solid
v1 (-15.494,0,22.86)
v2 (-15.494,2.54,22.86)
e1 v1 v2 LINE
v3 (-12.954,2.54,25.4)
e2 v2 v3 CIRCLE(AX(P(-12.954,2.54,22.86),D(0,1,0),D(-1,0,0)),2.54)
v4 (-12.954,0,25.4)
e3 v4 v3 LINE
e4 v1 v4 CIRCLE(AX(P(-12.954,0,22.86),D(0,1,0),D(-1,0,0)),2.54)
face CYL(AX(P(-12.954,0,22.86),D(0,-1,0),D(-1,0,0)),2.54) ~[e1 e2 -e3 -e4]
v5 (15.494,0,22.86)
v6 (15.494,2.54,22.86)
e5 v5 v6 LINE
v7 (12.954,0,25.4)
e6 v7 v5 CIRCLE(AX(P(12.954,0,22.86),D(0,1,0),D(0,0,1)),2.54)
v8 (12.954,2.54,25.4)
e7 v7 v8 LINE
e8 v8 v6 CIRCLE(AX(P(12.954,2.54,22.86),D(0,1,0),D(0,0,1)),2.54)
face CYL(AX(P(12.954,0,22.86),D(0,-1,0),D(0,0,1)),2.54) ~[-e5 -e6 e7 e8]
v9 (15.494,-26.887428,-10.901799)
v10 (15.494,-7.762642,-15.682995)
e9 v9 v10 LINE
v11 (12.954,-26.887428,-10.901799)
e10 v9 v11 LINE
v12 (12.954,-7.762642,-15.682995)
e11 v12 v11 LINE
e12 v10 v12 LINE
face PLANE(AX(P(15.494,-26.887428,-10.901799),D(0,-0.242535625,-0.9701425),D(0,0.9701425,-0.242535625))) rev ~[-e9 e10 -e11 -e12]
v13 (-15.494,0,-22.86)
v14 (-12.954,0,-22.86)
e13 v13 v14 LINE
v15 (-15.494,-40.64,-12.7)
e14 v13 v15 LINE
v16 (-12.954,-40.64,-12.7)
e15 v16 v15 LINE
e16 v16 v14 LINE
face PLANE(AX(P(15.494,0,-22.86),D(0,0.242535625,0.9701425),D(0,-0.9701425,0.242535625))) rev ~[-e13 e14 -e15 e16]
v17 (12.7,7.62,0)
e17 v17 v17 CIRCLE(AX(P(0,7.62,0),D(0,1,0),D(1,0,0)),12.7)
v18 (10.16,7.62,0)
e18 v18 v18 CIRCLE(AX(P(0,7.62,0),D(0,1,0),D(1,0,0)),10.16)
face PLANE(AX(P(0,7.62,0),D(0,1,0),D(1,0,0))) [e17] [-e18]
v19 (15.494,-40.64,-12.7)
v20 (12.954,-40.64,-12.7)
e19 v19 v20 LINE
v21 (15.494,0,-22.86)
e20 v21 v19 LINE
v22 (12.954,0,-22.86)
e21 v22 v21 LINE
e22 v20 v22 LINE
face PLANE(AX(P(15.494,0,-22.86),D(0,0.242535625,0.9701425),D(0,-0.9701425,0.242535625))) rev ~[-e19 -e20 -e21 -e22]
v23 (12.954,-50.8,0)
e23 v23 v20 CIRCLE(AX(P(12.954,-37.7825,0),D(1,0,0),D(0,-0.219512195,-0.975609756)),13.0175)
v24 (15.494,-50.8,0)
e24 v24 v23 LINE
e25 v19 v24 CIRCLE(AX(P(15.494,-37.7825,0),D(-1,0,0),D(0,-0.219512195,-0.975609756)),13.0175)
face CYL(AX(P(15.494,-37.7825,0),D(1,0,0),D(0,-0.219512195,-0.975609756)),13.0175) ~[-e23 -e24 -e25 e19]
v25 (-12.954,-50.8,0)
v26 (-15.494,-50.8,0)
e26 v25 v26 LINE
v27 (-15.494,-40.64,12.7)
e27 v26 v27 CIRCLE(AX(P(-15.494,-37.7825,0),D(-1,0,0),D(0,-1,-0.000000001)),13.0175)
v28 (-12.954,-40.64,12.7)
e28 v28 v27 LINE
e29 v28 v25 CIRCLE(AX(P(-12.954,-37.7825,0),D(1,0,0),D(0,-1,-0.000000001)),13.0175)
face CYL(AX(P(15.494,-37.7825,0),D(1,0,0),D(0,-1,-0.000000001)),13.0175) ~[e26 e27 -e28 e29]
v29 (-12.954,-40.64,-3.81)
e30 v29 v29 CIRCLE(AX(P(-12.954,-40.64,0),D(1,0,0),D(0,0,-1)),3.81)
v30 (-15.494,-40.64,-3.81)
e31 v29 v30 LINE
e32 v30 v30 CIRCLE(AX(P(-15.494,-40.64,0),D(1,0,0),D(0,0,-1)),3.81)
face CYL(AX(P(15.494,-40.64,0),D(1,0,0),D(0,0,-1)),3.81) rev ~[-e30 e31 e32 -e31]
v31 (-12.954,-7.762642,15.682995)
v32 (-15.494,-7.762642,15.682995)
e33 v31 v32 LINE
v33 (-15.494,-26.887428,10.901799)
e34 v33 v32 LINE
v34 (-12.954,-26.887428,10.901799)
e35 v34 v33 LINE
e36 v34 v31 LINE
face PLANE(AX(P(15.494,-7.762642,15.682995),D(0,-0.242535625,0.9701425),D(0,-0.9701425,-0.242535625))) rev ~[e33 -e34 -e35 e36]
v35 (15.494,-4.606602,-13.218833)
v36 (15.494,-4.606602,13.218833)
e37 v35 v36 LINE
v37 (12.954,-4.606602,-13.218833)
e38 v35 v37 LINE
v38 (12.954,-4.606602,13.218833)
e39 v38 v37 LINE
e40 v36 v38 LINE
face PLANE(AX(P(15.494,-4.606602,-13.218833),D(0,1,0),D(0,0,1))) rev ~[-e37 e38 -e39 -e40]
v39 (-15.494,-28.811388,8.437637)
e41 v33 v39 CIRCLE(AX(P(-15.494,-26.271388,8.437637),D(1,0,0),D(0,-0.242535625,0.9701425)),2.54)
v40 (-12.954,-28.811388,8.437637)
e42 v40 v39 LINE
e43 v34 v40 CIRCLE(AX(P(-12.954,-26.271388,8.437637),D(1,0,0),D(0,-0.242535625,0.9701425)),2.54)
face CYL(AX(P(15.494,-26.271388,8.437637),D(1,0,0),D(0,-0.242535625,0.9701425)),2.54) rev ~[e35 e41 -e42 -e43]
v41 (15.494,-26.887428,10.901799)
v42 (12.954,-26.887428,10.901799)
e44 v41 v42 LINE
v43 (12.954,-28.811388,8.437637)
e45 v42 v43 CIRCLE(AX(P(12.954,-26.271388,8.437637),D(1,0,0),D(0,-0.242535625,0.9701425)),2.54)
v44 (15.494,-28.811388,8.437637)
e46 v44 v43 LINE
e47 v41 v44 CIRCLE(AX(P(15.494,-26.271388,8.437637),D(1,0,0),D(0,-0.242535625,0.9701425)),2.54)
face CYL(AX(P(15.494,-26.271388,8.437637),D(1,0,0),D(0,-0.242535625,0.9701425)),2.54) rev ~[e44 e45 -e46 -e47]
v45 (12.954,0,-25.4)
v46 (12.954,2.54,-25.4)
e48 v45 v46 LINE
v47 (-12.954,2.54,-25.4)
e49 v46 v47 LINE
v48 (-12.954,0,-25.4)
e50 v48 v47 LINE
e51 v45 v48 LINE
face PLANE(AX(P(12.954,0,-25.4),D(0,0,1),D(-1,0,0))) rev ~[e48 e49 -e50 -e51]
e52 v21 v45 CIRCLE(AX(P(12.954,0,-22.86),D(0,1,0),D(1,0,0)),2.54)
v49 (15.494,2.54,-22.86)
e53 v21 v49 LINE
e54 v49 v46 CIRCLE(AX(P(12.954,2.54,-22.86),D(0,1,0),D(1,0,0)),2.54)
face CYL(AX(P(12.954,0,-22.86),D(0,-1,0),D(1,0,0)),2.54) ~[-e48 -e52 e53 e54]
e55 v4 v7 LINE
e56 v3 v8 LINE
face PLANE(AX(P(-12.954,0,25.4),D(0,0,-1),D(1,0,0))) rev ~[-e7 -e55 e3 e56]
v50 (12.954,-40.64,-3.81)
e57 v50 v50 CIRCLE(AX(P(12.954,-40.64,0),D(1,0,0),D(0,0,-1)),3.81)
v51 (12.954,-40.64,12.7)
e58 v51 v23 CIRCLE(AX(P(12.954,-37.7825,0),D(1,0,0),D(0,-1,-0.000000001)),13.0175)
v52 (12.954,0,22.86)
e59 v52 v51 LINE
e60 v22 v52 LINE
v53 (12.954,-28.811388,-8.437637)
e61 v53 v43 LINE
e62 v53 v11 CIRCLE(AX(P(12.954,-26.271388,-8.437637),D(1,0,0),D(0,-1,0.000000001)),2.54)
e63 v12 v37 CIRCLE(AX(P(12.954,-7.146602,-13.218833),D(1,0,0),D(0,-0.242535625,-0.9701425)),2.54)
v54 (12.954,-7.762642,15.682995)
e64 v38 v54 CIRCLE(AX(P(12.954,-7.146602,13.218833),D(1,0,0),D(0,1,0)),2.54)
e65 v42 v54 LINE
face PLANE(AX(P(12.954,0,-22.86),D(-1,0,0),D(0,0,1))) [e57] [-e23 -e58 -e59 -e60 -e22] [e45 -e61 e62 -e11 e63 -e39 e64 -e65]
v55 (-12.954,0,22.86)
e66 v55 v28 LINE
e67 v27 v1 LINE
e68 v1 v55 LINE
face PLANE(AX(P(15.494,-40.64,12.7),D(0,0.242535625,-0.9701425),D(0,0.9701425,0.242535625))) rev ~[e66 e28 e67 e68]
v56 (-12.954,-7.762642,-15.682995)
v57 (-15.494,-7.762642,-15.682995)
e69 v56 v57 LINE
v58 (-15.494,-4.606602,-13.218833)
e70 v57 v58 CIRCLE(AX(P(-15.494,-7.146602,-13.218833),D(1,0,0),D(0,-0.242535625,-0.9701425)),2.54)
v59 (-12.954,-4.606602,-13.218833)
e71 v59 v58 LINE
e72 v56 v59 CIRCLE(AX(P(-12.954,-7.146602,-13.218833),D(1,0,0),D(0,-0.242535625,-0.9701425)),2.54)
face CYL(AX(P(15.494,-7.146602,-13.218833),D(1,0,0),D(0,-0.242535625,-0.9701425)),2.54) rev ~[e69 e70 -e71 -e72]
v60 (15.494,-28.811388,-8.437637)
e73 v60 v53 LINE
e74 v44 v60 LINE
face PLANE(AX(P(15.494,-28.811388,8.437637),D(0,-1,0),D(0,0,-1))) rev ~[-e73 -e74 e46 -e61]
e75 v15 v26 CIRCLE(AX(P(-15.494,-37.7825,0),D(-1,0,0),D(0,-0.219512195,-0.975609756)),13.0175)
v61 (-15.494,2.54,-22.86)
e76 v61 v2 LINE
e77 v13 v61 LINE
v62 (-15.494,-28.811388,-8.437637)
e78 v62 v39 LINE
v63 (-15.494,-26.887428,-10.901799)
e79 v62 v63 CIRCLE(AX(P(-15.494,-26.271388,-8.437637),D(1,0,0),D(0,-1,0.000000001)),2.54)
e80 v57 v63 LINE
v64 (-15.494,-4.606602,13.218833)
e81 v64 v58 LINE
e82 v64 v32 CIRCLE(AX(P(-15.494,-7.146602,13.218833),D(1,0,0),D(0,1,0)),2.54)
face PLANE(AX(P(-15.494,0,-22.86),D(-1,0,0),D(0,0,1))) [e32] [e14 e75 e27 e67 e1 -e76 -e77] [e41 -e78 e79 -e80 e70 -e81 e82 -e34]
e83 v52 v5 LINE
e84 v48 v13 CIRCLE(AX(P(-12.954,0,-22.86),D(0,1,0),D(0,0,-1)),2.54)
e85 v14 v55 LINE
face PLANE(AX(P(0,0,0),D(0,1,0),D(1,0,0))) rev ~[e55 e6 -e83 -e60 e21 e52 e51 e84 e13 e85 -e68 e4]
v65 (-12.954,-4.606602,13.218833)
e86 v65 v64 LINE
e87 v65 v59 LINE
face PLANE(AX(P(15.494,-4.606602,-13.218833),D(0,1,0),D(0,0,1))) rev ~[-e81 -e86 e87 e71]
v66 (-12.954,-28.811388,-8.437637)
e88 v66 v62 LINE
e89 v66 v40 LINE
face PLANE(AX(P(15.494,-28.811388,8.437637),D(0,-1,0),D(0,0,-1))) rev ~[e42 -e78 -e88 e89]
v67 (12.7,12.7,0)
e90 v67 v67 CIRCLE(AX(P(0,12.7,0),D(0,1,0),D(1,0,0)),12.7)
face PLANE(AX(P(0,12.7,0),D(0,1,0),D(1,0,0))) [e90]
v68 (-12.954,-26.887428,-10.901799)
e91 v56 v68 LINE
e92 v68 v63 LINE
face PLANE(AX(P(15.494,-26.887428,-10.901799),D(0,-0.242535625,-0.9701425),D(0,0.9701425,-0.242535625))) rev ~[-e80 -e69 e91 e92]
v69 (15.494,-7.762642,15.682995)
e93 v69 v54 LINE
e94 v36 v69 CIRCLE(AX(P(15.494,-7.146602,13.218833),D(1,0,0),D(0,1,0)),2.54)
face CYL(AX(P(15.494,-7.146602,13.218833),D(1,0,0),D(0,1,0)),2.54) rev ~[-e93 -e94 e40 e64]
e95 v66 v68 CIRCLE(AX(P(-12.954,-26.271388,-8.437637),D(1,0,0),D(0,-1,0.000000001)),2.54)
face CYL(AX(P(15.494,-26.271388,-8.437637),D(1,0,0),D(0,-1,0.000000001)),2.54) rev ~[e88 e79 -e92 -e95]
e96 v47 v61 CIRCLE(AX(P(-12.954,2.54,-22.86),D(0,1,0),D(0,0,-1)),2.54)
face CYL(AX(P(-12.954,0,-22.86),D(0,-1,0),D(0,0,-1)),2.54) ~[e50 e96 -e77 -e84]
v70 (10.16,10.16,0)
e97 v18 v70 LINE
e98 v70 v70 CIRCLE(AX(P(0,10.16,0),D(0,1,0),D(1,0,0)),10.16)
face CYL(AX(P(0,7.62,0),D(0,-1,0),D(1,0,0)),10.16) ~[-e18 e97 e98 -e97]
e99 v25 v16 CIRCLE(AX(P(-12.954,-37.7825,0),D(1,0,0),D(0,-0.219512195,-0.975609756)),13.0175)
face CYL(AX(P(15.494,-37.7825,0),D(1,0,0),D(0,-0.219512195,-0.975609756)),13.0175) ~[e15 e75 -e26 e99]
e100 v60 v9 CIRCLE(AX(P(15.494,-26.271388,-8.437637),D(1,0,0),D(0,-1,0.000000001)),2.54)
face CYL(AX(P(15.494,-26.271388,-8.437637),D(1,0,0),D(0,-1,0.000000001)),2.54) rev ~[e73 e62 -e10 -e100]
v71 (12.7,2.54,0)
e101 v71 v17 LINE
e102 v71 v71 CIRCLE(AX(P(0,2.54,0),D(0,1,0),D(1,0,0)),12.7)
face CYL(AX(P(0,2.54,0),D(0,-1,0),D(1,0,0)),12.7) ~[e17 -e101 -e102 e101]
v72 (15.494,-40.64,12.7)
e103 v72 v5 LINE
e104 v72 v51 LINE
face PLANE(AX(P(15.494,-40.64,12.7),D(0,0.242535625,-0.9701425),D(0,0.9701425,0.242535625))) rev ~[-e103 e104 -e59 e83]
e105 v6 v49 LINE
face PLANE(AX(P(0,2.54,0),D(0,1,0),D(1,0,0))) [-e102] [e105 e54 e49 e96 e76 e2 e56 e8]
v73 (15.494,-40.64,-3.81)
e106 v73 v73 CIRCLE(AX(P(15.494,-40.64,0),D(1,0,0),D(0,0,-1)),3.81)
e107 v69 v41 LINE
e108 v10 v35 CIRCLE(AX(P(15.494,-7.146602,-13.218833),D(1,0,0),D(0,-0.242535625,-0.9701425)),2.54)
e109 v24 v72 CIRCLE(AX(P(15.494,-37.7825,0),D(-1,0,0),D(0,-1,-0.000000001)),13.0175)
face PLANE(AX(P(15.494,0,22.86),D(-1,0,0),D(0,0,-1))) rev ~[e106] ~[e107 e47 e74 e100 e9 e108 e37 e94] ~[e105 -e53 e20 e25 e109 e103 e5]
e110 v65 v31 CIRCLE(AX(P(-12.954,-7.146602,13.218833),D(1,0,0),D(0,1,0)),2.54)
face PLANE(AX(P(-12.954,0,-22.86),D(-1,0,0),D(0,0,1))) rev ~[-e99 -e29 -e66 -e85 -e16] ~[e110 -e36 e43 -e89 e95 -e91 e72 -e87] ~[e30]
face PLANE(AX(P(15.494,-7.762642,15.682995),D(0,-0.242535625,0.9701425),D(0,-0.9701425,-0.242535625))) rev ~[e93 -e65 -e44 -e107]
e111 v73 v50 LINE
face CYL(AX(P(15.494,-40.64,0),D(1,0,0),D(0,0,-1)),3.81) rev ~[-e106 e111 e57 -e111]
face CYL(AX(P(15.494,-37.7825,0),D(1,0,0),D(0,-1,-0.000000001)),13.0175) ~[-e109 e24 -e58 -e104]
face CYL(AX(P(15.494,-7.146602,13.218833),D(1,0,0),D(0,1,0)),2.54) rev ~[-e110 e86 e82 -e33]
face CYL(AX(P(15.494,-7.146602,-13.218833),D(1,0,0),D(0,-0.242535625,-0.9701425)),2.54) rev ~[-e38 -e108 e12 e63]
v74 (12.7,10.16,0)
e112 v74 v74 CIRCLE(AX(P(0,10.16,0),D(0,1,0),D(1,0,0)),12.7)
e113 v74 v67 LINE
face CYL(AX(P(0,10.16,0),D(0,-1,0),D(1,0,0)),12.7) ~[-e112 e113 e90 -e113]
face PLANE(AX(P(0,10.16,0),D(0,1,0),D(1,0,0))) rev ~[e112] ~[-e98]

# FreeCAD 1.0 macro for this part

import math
import FreeCAD as App
import Part
import Sketcher
from FreeCAD import Vector
Q = App.Units.Quantity

doc = App.newDocument("Part")
body = doc.addObject("PartDesign::Body", "Body")

# Sketch on XZ plane
sketch1 = doc.addObject("Sketcher::SketchObject", "Sketch")
body.addObject(sketch1)
sketch1.AttachmentSupport = (doc.XZ_Plane, [""])
sketch1.MapMode = "FlatFace"
sketch1.addGeometry([
    Part.LineSegment(Vector(-13, 25.4, 0), Vector(13, 25.4, 0)),  # 0
    Part.ArcOfCircle(Part.Circle(Vector(13, 22.9, 0), Vector(0, 0, 1), 2.5), math.radians(0), math.radians(90)),  # 1
    Part.LineSegment(Vector(15.5, 22.9, 0), Vector(15.5, -22.9, 0)),  # 2
    Part.ArcOfCircle(Part.Circle(Vector(13, -22.9, 0), Vector(0, 0, 1), 2.5), math.radians(-90), math.radians(0)),  # 3
    Part.LineSegment(Vector(13, -25.4, 0), Vector(-13, -25.4, 0)),  # 4
    Part.ArcOfCircle(Part.Circle(Vector(-13, -22.9, 0), Vector(0, 0, 1), 2.5), math.radians(-180), math.radians(-90)),  # 5
    Part.LineSegment(Vector(-15.5, -22.9, 0), Vector(-15.5, 22.9, 0)),  # 6
    Part.ArcOfCircle(Part.Circle(Vector(-13, 22.9, 0), Vector(0, 0, 1), 2.5), math.radians(90), math.radians(180)),  # 7
], False)
sketch1.addConstraint([
    Sketcher.Constraint("Tangent", 0, 2, 1, 2),
    Sketcher.Constraint("Tangent", 1, 1, 2, 1),
    Sketcher.Constraint("Tangent", 2, 2, 3, 2),
    Sketcher.Constraint("Tangent", 3, 1, 4, 1),
    Sketcher.Constraint("Tangent", 4, 2, 5, 2),
    Sketcher.Constraint("Tangent", 5, 1, 6, 1),
    Sketcher.Constraint("Tangent", 6, 2, 7, 2),
    Sketcher.Constraint("Tangent", 7, 1, 0, 1),
    Sketcher.Constraint("Horizontal", 0),
    Sketcher.Constraint("Vertical", 2),
    Sketcher.Constraint("Horizontal", 4),
    Sketcher.Constraint("Vertical", 6),
    Sketcher.Constraint("Equal", 1, 3),
    Sketcher.Constraint("Equal", 3, 5),
    Sketcher.Constraint("Equal", 5, 7),
    Sketcher.Constraint("Symmetric", 1, 3, 5, 3, -1, 1),
    Sketcher.Constraint("Radius", 1, Q("0.1 in")),
    Sketcher.Constraint("DistanceY", 2, 2, 2, 1, Q("1.8 in")),
    Sketcher.Constraint("DistanceX", 0, 1, 0, 2, Q("1.02 in")),
])
pad1 = doc.addObject("PartDesign::Pad", "Pad")
body.addObject(pad1)
pad1.Profile = sketch1
pad1.Length = Q("0.1 in")
pad1.Reversed = True

# Sketch on XZ plane
sketch2 = doc.addObject("Sketcher::SketchObject", "Sketch001")
body.addObject(sketch2)
sketch2.AttachmentSupport = (doc.XZ_Plane, [""])
sketch2.MapMode = "FlatFace"
sketch2.AttachmentOffset = App.Placement(Vector(0, 0, -0.1 * 25.4), App.Rotation())
sketch2.addGeometry(Part.Circle(Vector(0, 0, 0), Vector(0, 0, 1), 13), False)
sketch2.addConstraint([
    Sketcher.Constraint("Coincident", 0, 3, -1, 1),
    Sketcher.Constraint("Diameter", 0, Q("1 in")),
])
pad2 = doc.addObject("PartDesign::Pad", "Pad001")
body.addObject(pad2)
pad2.Profile = sketch2
pad2.Length = Q("0.2 in")
pad2.Reversed = True

# Sketch on XZ plane
sketch3 = doc.addObject("Sketcher::SketchObject", "Sketch002")
body.addObject(sketch3)
sketch3.AttachmentSupport = (doc.XZ_Plane, [""])
sketch3.MapMode = "FlatFace"
sketch3.AttachmentOffset = App.Placement(Vector(0, 0, -0.3 * 25.4), App.Rotation())
sketch3.addGeometry(Part.Circle(Vector(0, 0, 0), Vector(0, 0, 1), 10), False)
sketch3.addConstraint([
    Sketcher.Constraint("Coincident", 0, 3, -1, 1),
    Sketcher.Constraint("Diameter", 0, Q("0.8 in")),
])
pad3 = doc.addObject("PartDesign::Pad", "Pad002")
body.addObject(pad3)
pad3.Profile = sketch3
pad3.Length = Q("0.1 in")
pad3.Reversed = True

# Sketch on XZ plane
sketch4 = doc.addObject("Sketcher::SketchObject", "Sketch003")
body.addObject(sketch4)
sketch4.AttachmentSupport = (doc.XZ_Plane, [""])
sketch4.MapMode = "FlatFace"
sketch4.AttachmentOffset = App.Placement(Vector(0, 0, -0.4 * 25.4), App.Rotation())
sketch4.addGeometry(Part.Circle(Vector(0, 0, 0), Vector(0, 0, 1), 13), False)
sketch4.addConstraint([
    Sketcher.Constraint("Coincident", 0, 3, -1, 1),
    Sketcher.Constraint("Diameter", 0, Q("1 in")),
])
pad4 = doc.addObject("PartDesign::Pad", "Pad003")
body.addObject(pad4)
pad4.Profile = sketch4
pad4.Length = Q("0.1 in")
pad4.Reversed = True

# Sketch on XZ plane
sketch5 = doc.addObject("Sketcher::SketchObject", "Sketch004")
body.addObject(sketch5)
sketch5.AttachmentSupport = (doc.XZ_Plane, [""])
sketch5.MapMode = "FlatFace"
sketch5.addGeometry([
    Part.LineSegment(Vector(-15.5, 22.9, 0), Vector(-15.5, -22.9, 0)),  # 0
    Part.LineSegment(Vector(-15.5, -22.9, 0), Vector(-13, -22.9, 0)),  # 1
    Part.LineSegment(Vector(-13, -22.9, 0), Vector(-13, 22.9, 0)),  # 2
    Part.LineSegment(Vector(-13, 22.9, 0), Vector(-15.5, 22.9, 0)),  # 3
    Part.LineSegment(Vector(13, 22.9, 0), Vector(13, -22.9, 0)),  # 4
    Part.LineSegment(Vector(13, -22.9, 0), Vector(15.5, -22.9, 0)),  # 5
    Part.LineSegment(Vector(15.5, -22.9, 0), Vector(15.5, 22.9, 0)),  # 6
    Part.LineSegment(Vector(15.5, 22.9, 0), Vector(13, 22.9, 0)),  # 7
], False)
sketch5.addConstraint([
    Sketcher.Constraint("Coincident", 0, 2, 1, 1),
    Sketcher.Constraint("Coincident", 1, 2, 2, 1),
    Sketcher.Constraint("Coincident", 2, 2, 3, 1),
    Sketcher.Constraint("Coincident", 3, 2, 0, 1),
    Sketcher.Constraint("Coincident", 4, 2, 5, 1),
    Sketcher.Constraint("Coincident", 5, 2, 6, 1),
    Sketcher.Constraint("Coincident", 6, 2, 7, 1),
    Sketcher.Constraint("Coincident", 7, 2, 4, 1),
    Sketcher.Constraint("Vertical", 0),
    Sketcher.Constraint("Horizontal", 1),
    Sketcher.Constraint("Vertical", 2),
    Sketcher.Constraint("Horizontal", 3),
    Sketcher.Constraint("Vertical", 4),
    Sketcher.Constraint("Horizontal", 5),
    Sketcher.Constraint("Vertical", 6),
    Sketcher.Constraint("Horizontal", 7),
    Sketcher.Constraint("Symmetric", 2, 2, 4, 2, -1, 1),
    Sketcher.Constraint("Symmetric", 0, 2, 6, 2, -1, 1),
    Sketcher.Constraint("Horizontal", 1, 2, 4, 2),
    Sketcher.Constraint("DistanceX", 1, 1, 1, 2, Q("0.1 in")),
    Sketcher.Constraint("DistanceY", 0, 2, 0, 1, Q("1.8 in")),
    Sketcher.Constraint("DistanceX", 0, 2, -1, 1, Q("0.61 in")),
])
pad5 = doc.addObject("PartDesign::Pad", "Pad004")
body.addObject(pad5)
pad5.Profile = sketch5
pad5.Length = Q("2 in")

# Sketch on YZ plane
sketch6 = doc.addObject("Sketcher::SketchObject", "Sketch005")
body.addObject(sketch6)
sketch6.AttachmentSupport = (doc.YZ_Plane, [""])
sketch6.MapMode = "FlatFace"
sketch6.AttachmentOffset = App.Placement(Vector(0, 0, 0.61 * 25.4), App.Rotation())
sketch6.addGeometry(Part.Circle(Vector(-40.6, 0, 0), Vector(0, 0, 1), 3.8), False)
sketch6.addConstraint([
    Sketcher.Constraint("PointOnObject", 0, 3, -1),
    Sketcher.Constraint("Diameter", 0, Q("0.3 in")),
    Sketcher.Constraint("DistanceX", 0, 3, -1, 1, Q("1.6 in")),
])
pocket1 = doc.addObject("PartDesign::Pocket", "Pocket")
body.addObject(pocket1)
pocket1.Profile = sketch6
pocket1.Length = Q("0.1 in")

# Sketch on YZ plane
sketch7 = doc.addObject("Sketcher::SketchObject", "Sketch006")
body.addObject(sketch7)
sketch7.AttachmentSupport = (doc.YZ_Plane, [""])
sketch7.MapMode = "FlatFace"
sketch7.AttachmentOffset = App.Placement(Vector(0, 0, 0.61 * 25.4), App.Rotation())
sketch7.addGeometry([
    Part.LineSegment(Vector(-40.6, 12.7, 0), Vector(0, 22.9, 0)),  # 0
    Part.LineSegment(Vector(0, 22.9, 0), Vector(-50.8, 22.9, 0)),  # 1
    Part.LineSegment(Vector(-50.8, 22.9, 0), Vector(-50.8, 0, 0)),  # 2
    Part.ArcOfCircle(Part.Circle(Vector(-37.8, 0, 0), Vector(0, 0, 1), 13), math.radians(103), math.radians(180)),  # 3
    Part.ArcOfCircle(Part.Circle(Vector(-37.8, 0, 0), Vector(0, 0, 1), 13), math.radians(-180), math.radians(-103)),  # 4
    Part.LineSegment(Vector(-50.8, 0, 0), Vector(-50.8, -22.9, 0)),  # 5
    Part.LineSegment(Vector(-50.8, -22.9, 0), Vector(0, -22.9, 0)),  # 6
    Part.LineSegment(Vector(0, -22.9, 0), Vector(-40.6, -12.7, 0)),  # 7
    Part.Circle(Vector(-40.6, 0, 0), Vector(0, 0, 1), 3.8),  # 8
], False)
sketch7.addConstraint([
    Sketcher.Constraint("Coincident", 0, 2, 1, 1),
    Sketcher.Constraint("Coincident", 1, 2, 2, 1),
    Sketcher.Constraint("Tangent", 2, 2, 3, 2),
    Sketcher.Constraint("Coincident", 3, 1, 0, 1),
    Sketcher.Constraint("Tangent", 4, 1, 5, 1),
    Sketcher.Constraint("Coincident", 5, 2, 6, 1),
    Sketcher.Constraint("Coincident", 6, 2, 7, 1),
    Sketcher.Constraint("Coincident", 7, 2, 4, 2),
    Sketcher.Constraint("Horizontal", 1),
    Sketcher.Constraint("Vertical", 2),
    Sketcher.Constraint("Vertical", 5),
    Sketcher.Constraint("Horizontal", 6),
    Sketcher.Constraint("Coincident", 4, 3, 3, 3),
    Sketcher.Constraint("Equal", 3, 4),
    Sketcher.Constraint("Symmetric", 0, 2, 6, 2, -1, 1),
    Sketcher.Constraint("Symmetric", 3, 1, 7, 2, -1),
    Sketcher.Constraint("PointOnObject", 8, 3, -1),
    Sketcher.Constraint("PointOnObject", 0, 2, -2),
    Sketcher.Constraint("Vertical", 8, 3, 3, 1),
    Sketcher.Constraint("Diameter", 8, Q("0.3 in")),
    Sketcher.Constraint("DistanceX", 1, 2, 1, 1, Q("2 in")),
    Sketcher.Constraint("DistanceY", 2, 2, 2, 1, Q("0.9 in")),
    Sketcher.Constraint("DistanceX", 8, 3, -1, 1, Q("1.6 in")),
    Sketcher.Constraint("DistanceY", -1, 1, 3, 1, Q("0.5 in")),
])
pocket2 = doc.addObject("PartDesign::Pocket", "Pocket001")
body.addObject(pocket2)
pocket2.Profile = sketch7
pocket2.Length = Q("1.22 in")

# Sketch on YZ plane
sketch8 = doc.addObject("Sketcher::SketchObject", "Sketch007")
body.addObject(sketch8)
sketch8.AttachmentSupport = (doc.YZ_Plane, [""])
sketch8.MapMode = "FlatFace"
sketch8.AttachmentOffset = App.Placement(Vector(0, 0, 0.61 * 25.4), App.Rotation())
sketch8.addGeometry([
    Part.LineSegment(Vector(-7.8, 15.7, 0), Vector(-26.9, 10.9, 0)),  # 0
    Part.ArcOfCircle(Part.Circle(Vector(-26.3, 8.4, 0), Vector(0, 0, 1), 2.5), math.radians(104), math.radians(180)),  # 1
    Part.LineSegment(Vector(-28.8, 8.4, 0), Vector(-28.8, -8.4, 0)),  # 2
    Part.ArcOfCircle(Part.Circle(Vector(-26.3, -8.4, 0), Vector(0, 0, 1), 2.5), math.radians(180), math.radians(256)),  # 3
    Part.LineSegment(Vector(-26.9, -10.9, 0), Vector(-7.8, -15.7, 0)),  # 4
    Part.ArcOfCircle(Part.Circle(Vector(-7.1, -13.2, 0), Vector(0, 0, 1), 2.5), math.radians(-104), math.radians(0)),  # 5
    Part.LineSegment(Vector(-4.6, -13.2, 0), Vector(-4.6, 13.2, 0)),  # 6
    Part.ArcOfCircle(Part.Circle(Vector(-7.1, 13.2, 0), Vector(0, 0, 1), 2.5), math.radians(0), math.radians(104)),  # 7
], False)
sketch8.addConstraint([
    Sketcher.Constraint("Tangent", 0, 2, 1, 1),
    Sketcher.Constraint("Tangent", 1, 2, 2, 1),
    Sketcher.Constraint("Tangent", 2, 2, 3, 1),
    Sketcher.Constraint("Tangent", 3, 2, 4, 1),
    Sketcher.Constraint("Tangent", 4, 2, 5, 1),
    Sketcher.Constraint("Tangent", 5, 2, 6, 1),
    Sketcher.Constraint("Tangent", 6, 2, 7, 1),
    Sketcher.Constraint("Tangent", 7, 2, 0, 1),
    Sketcher.Constraint("Vertical", 2),
    Sketcher.Constraint("Vertical", 6),
    Sketcher.Constraint("Equal", 1, 3),
    Sketcher.Constraint("Equal", 3, 5),
    Sketcher.Constraint("Equal", 5, 7),
    Sketcher.Constraint("Symmetric", 0, 2, 3, 2, -1),
    Sketcher.Constraint("Radius", 1, Q("0.1 in")),
    Sketcher.Constraint("DistanceX", 5, 3, -1, 1, Q("7.146602 mm")),
    Sketcher.Constraint("DistanceY", -1, 1, 0, 2, Q("10.901799 mm")),
    Sketcher.Constraint("Distance", 0, Q("19.713378 mm")),
    Sketcher.Constraint("DistanceY", 2, 2, 2, 1, Q("16.875274 mm")),
])
pocket3 = doc.addObject("PartDesign::Pocket", "Pocket002")
body.addObject(pocket3)
pocket3.Profile = sketch8
pocket3.Type = "ThroughAll"

doc.recompute()
